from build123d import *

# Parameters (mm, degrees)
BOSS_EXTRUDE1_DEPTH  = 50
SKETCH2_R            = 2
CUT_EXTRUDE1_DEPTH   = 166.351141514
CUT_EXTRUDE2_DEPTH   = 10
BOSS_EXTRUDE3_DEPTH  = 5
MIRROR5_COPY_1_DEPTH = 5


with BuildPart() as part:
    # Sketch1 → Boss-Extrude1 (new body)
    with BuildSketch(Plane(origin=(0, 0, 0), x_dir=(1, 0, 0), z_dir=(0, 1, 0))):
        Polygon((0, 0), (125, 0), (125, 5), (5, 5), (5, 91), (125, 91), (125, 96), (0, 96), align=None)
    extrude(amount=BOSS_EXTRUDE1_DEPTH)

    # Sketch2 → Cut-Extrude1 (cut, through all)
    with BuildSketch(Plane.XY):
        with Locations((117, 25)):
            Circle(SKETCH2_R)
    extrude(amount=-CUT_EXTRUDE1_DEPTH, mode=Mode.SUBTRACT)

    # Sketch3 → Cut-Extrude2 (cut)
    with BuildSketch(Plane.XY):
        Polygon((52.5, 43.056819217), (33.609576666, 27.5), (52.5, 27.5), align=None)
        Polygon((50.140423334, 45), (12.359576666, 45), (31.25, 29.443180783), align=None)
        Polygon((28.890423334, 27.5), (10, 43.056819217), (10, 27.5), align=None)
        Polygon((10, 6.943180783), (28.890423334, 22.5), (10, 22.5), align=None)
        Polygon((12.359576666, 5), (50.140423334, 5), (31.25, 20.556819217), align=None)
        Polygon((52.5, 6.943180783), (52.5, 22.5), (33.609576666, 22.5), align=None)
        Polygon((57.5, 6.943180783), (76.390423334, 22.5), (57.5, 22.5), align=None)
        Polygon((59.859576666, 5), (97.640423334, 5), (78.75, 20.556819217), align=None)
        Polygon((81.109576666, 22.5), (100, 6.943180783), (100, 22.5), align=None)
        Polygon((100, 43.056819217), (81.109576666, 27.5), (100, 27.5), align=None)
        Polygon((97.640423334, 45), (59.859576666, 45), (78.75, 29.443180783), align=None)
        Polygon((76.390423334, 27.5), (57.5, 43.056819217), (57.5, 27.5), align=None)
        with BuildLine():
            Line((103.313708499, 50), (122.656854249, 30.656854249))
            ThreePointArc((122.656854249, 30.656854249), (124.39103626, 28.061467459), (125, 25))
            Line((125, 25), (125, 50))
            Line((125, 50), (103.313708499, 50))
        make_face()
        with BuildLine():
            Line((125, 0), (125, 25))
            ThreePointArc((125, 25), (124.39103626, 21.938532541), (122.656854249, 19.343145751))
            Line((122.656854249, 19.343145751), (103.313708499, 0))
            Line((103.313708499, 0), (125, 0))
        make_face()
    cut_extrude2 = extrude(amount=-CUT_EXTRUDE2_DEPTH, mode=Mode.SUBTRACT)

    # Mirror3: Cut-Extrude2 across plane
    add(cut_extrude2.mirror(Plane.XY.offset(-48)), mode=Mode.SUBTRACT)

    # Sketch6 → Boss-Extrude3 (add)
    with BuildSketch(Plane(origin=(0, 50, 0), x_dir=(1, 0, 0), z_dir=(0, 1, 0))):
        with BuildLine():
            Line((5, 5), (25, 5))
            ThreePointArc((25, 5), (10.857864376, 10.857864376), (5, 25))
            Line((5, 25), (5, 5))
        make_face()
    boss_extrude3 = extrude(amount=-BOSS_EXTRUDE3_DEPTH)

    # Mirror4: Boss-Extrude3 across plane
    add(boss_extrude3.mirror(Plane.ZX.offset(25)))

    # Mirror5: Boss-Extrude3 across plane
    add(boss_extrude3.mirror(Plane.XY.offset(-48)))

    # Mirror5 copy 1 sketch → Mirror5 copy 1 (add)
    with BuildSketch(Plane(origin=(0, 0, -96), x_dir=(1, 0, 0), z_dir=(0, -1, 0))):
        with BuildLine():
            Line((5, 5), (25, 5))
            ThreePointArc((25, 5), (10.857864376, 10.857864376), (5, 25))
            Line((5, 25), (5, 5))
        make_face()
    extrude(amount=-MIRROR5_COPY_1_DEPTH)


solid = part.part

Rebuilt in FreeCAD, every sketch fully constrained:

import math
import FreeCAD as App
import Part
import Sketcher

V = App.Vector

doc = App.newDocument("Part")
body = doc.addObject("PartDesign::Body", "Body")

# Sketch on XZ plane
sketch1 = doc.addObject("Sketcher::SketchObject", "Sketch")
body.addObject(sketch1)
sketch1.AttachmentSupport = (doc.XZ_Plane, [""])
sketch1.MapMode = "FlatFace"
sketch1.addGeometry(Part.LineSegment(V(0, 0, 0), V(125, 0, 0)), False)
sketch1.addGeometry(Part.LineSegment(V(125, 0, 0), V(125, -5, 0)), False)
sketch1.addGeometry(Part.LineSegment(V(125, -5, 0), V(5, -5, 0)), False)
sketch1.addGeometry(Part.LineSegment(V(5, -5, 0), V(5, -91, 0)), False)
sketch1.addGeometry(Part.LineSegment(V(5, -91, 0), V(125, -91, 0)), False)
sketch1.addGeometry(Part.LineSegment(V(125, -91, 0), V(125, -96, 0)), False)
sketch1.addGeometry(Part.LineSegment(V(125, -96, 0), V(0, -96, 0)), False)
sketch1.addGeometry(Part.LineSegment(V(0, -96, 0), V(0, 0, 0)), False)
sketch1.addConstraint(Sketcher.Constraint("Coincident", 0, 2, 1, 1))
sketch1.addConstraint(Sketcher.Constraint("Coincident", 1, 2, 2, 1))
sketch1.addConstraint(Sketcher.Constraint("Coincident", 2, 2, 3, 1))
sketch1.addConstraint(Sketcher.Constraint("Coincident", 3, 2, 4, 1))
sketch1.addConstraint(Sketcher.Constraint("Coincident", 4, 2, 5, 1))
sketch1.addConstraint(Sketcher.Constraint("Coincident", 5, 2, 6, 1))
sketch1.addConstraint(Sketcher.Constraint("Coincident", 6, 2, 7, 1))
sketch1.addConstraint(Sketcher.Constraint("Coincident", 7, 2, 0, 1))
sketch1.addConstraint(Sketcher.Constraint("Horizontal", 0))
sketch1.addConstraint(Sketcher.Constraint("Vertical", 1))
sketch1.addConstraint(Sketcher.Constraint("Horizontal", 2))
sketch1.addConstraint(Sketcher.Constraint("Vertical", 3))
sketch1.addConstraint(Sketcher.Constraint("Horizontal", 4))
sketch1.addConstraint(Sketcher.Constraint("Vertical", 5))
sketch1.addConstraint(Sketcher.Constraint("Horizontal", 6))
sketch1.addConstraint(Sketcher.Constraint("Vertical", 7))
sketch1.addConstraint(Sketcher.Constraint("Coincident", 7, 2, -1, 1))
sketch1.addConstraint(Sketcher.Constraint("Vertical", 1, 2, 4, 2))
sketch1.addConstraint(Sketcher.Constraint("Equal", 1, 5))
sketch1.addConstraint(Sketcher.Constraint("DistanceX", 0, 1, 0, 2, 125.0))
sketch1.addConstraint(Sketcher.Constraint("DistanceX", 2, 2, 2, 1, 120.0))
sketch1.addConstraint(Sketcher.Constraint("DistanceY", 1, 2, 1, 1, 5.0))
sketch1.addConstraint(Sketcher.Constraint("DistanceY", 3, 2, 3, 1, 86.0))
pad1 = doc.addObject("PartDesign::Pad", "Pad")
body.addObject(pad1)
pad1.Profile = sketch1
pad1.Length = 50
pad1.Reversed = True

# Sketch on XY plane
sketch2 = doc.addObject("Sketcher::SketchObject", "Sketch001")
body.addObject(sketch2)
sketch2.AttachmentSupport = (doc.XY_Plane, [""])
sketch2.MapMode = "FlatFace"
sketch2.addGeometry(Part.Circle(V(117, 25, 0), V(0, 0, 1), 2), False)
sketch2.addConstraint(Sketcher.Constraint("Diameter", 0, 4.0))
sketch2.addConstraint(Sketcher.Constraint("DistanceX", -1, 1, 0, 3, 117.0))
sketch2.addConstraint(Sketcher.Constraint("DistanceY", -1, 1, 0, 3, 25.0))
pocket1 = doc.addObject("PartDesign::Pocket", "Pocket")
body.addObject(pocket1)
pocket1.Profile = sketch2
pocket1.Type = "ThroughAll"

# Sketch on XY plane
sketch3 = doc.addObject("Sketcher::SketchObject", "Sketch002")
body.addObject(sketch3)
sketch3.AttachmentSupport = (doc.XY_Plane, [""])
sketch3.MapMode = "FlatFace"
sketch3.addGeometry(Part.LineSegment(V(52, 43, 0), V(34, 28, 0)), False)
sketch3.addGeometry(Part.LineSegment(V(34, 28, 0), V(52, 28, 0)), False)
sketch3.addGeometry(Part.LineSegment(V(52, 28, 0), V(52, 43, 0)), False)
sketch3.addGeometry(Part.LineSegment(V(50, 45, 0), V(12, 45, 0)), False)
sketch3.addGeometry(Part.LineSegment(V(12, 45, 0), V(31, 29, 0)), False)
sketch3.addGeometry(Part.LineSegment(V(31, 29, 0), V(50, 45, 0)), False)
sketch3.addGeometry(Part.LineSegment(V(29, 28, 0), V(10, 43, 0)), False)
sketch3.addGeometry(Part.LineSegment(V(10, 43, 0), V(10, 28, 0)), False)
sketch3.addGeometry(Part.LineSegment(V(10, 28, 0), V(29, 28, 0)), False)
sketch3.addGeometry(Part.LineSegment(V(10, 7, 0), V(29, 22, 0)), False)
sketch3.addGeometry(Part.LineSegment(V(29, 22, 0), V(10, 22, 0)), False)
sketch3.addGeometry(Part.LineSegment(V(10, 22, 0), V(10, 7, 0)), False)
sketch3.addGeometry(Part.LineSegment(V(12, 5, 0), V(50, 5, 0)), False)
sketch3.addGeometry(Part.LineSegment(V(50, 5, 0), V(31, 21, 0)), False)
sketch3.addGeometry(Part.LineSegment(V(31, 21, 0), V(12, 5, 0)), False)
sketch3.addGeometry(Part.LineSegment(V(52, 7, 0), V(52, 22, 0)), False)
sketch3.addGeometry(Part.LineSegment(V(52, 22, 0), V(34, 22, 0)), False)
sketch3.addGeometry(Part.LineSegment(V(34, 22, 0), V(52, 7, 0)), False)
sketch3.addGeometry(Part.LineSegment(V(58, 7, 0), V(76, 22, 0)), False)
sketch3.addGeometry(Part.LineSegment(V(76, 22, 0), V(58, 22, 0)), False)
sketch3.addGeometry(Part.LineSegment(V(58, 22, 0), V(58, 7, 0)), False)
sketch3.addGeometry(Part.LineSegment(V(60, 5, 0), V(98, 5, 0)), False)
sketch3.addGeometry(Part.LineSegment(V(98, 5, 0), V(79, 21, 0)), False)
sketch3.addGeometry(Part.LineSegment(V(79, 21, 0), V(60, 5, 0)), False)
sketch3.addGeometry(Part.LineSegment(V(81, 22, 0), V(100, 7, 0)), False)
sketch3.addGeometry(Part.LineSegment(V(100, 7, 0), V(100, 22, 0)), False)
sketch3.addGeometry(Part.LineSegment(V(100, 22, 0), V(81, 22, 0)), False)
sketch3.addGeometry(Part.LineSegment(V(100, 43, 0), V(81, 28, 0)), False)
sketch3.addGeometry(Part.LineSegment(V(81, 28, 0), V(100, 28, 0)), False)
sketch3.addGeometry(Part.LineSegment(V(100, 28, 0), V(100, 43, 0)), False)
sketch3.addGeometry(Part.LineSegment(V(98, 45, 0), V(60, 45, 0)), False)
sketch3.addGeometry(Part.LineSegment(V(60, 45, 0), V(79, 29, 0)), False)
sketch3.addGeometry(Part.LineSegment(V(79, 29, 0), V(98, 45, 0)), False)
sketch3.addGeometry(Part.LineSegment(V(76, 28, 0), V(58, 43, 0)), False)
sketch3.addGeometry(Part.LineSegment(V(58, 43, 0), V(58, 28, 0)), False)
sketch3.addGeometry(Part.LineSegment(V(58, 28, 0), V(76, 28, 0)), False)
sketch3.addGeometry(Part.LineSegment(V(103, 50, 0), V(123, 31, 0)), False)
sketch3.addGeometry(Part.ArcOfCircle(Part.Circle(V(117, 25, 0), V(0, 0, 1), 8), math.radians(0), math.radians(45)), False)
sketch3.addGeometry(Part.LineSegment(V(125, 25, 0), V(125, 50, 0)), False)
sketch3.addGeometry(Part.LineSegment(V(125, 50, 0), V(103, 50, 0)), False)
sketch3.addGeometry(Part.LineSegment(V(125, 0, 0), V(125, 25, 0)), False)
sketch3.addGeometry(Part.ArcOfCircle(Part.Circle(V(117, 25, 0), V(0, 0, 1), 8), math.radians(-45), math.radians(0)), False)
sketch3.addGeometry(Part.LineSegment(V(123, 19, 0), V(103, 0, 0)), False)
sketch3.addGeometry(Part.LineSegment(V(103, 0, 0), V(125, 0, 0)), False)
sketch3.addConstraint(Sketcher.Constraint("Coincident", 0, 2, 1, 1))
sketch3.addConstraint(Sketcher.Constraint("Coincident", 1, 2, 2, 1))
sketch3.addConstraint(Sketcher.Constraint("Coincident", 2, 2, 0, 1))
sketch3.addConstraint(Sketcher.Constraint("Coincident", 3, 2, 4, 1))
sketch3.addConstraint(Sketcher.Constraint("Coincident", 4, 2, 5, 1))
sketch3.addConstraint(Sketcher.Constraint("Coincident", 5, 2, 3, 1))
sketch3.addConstraint(Sketcher.Constraint("Coincident", 6, 2, 7, 1))
sketch3.addConstraint(Sketcher.Constraint("Coincident", 7, 2, 8, 1))
sketch3.addConstraint(Sketcher.Constraint("Coincident", 8, 2, 6, 1))
sketch3.addConstraint(Sketcher.Constraint("Coincident", 9, 2, 10, 1))
sketch3.addConstraint(Sketcher.Constraint("Coincident", 10, 2, 11, 1))
sketch3.addConstraint(Sketcher.Constraint("Coincident", 11, 2, 9, 1))
sketch3.addConstraint(Sketcher.Constraint("Coincident", 12, 2, 13, 1))
sketch3.addConstraint(Sketcher.Constraint("Coincident", 13, 2, 14, 1))
sketch3.addConstraint(Sketcher.Constraint("Coincident", 14, 2, 12, 1))
sketch3.addConstraint(Sketcher.Constraint("Coincident", 15, 2, 16, 1))
sketch3.addConstraint(Sketcher.Constraint("Coincident", 16, 2, 17, 1))
sketch3.addConstraint(Sketcher.Constraint("Coincident", 17, 2, 15, 1))
sketch3.addConstraint(Sketcher.Constraint("Coincident", 18, 2, 19, 1))
sketch3.addConstraint(Sketcher.Constraint("Coincident", 19, 2, 20, 1))
sketch3.addConstraint(Sketcher.Constraint("Coincident", 20, 2, 18, 1))
sketch3.addConstraint(Sketcher.Constraint("Coincident", 21, 2, 22, 1))
sketch3.addConstraint(Sketcher.Constraint("Coincident", 22, 2, 23, 1))
sketch3.addConstraint(Sketcher.Constraint("Coincident", 23, 2, 21, 1))
sketch3.addConstraint(Sketcher.Constraint("Coincident", 24, 2, 25, 1))
sketch3.addConstraint(Sketcher.Constraint("Coincident", 25, 2, 26, 1))
sketch3.addConstraint(Sketcher.Constraint("Coincident", 26, 2, 24, 1))
sketch3.addConstraint(Sketcher.Constraint("Coincident", 27, 2, 28, 1))
sketch3.addConstraint(Sketcher.Constraint("Coincident", 28, 2, 29, 1))
sketch3.addConstraint(Sketcher.Constraint("Coincident", 29, 2, 27, 1))
sketch3.addConstraint(Sketcher.Constraint("Coincident", 30, 2, 31, 1))
sketch3.addConstraint(Sketcher.Constraint("Coincident", 31, 2, 32, 1))
sketch3.addConstraint(Sketcher.Constraint("Coincident", 32, 2, 30, 1))
sketch3.addConstraint(Sketcher.Constraint("Coincident", 33, 2, 34, 1))
sketch3.addConstraint(Sketcher.Constraint("Coincident", 34, 2, 35, 1))
sketch3.addConstraint(Sketcher.Constraint("Coincident", 35, 2, 33, 1))
sketch3.addConstraint(Sketcher.Constraint("Tangent", 36, 2, 37, 2))
sketch3.addConstraint(Sketcher.Constraint("Tangent", 37, 1, 38, 1))
sketch3.addConstraint(Sketcher.Constraint("Coincident", 38, 2, 39, 1))
sketch3.addConstraint(Sketcher.Constraint("Coincident", 39, 2, 36, 1))
sketch3.addConstraint(Sketcher.Constraint("Tangent", 40, 2, 41, 2))
sketch3.addConstraint(Sketcher.Constraint("Tangent", 41, 1, 42, 1))
sketch3.addConstraint(Sketcher.Constraint("Coincident", 42, 2, 43, 1))
sketch3.addConstraint(Sketcher.Constraint("Coincident", 43, 2, 40, 1))
sketch3.addConstraint(Sketcher.Constraint("Horizontal", 1))
sketch3.addConstraint(Sketcher.Constraint("Vertical", 2))
sketch3.addConstraint(Sketcher.Constraint("Horizontal", 3))
sketch3.addConstraint(Sketcher.Constraint("Vertical", 7))
sketch3.addConstraint(Sketcher.Constraint("Horizontal", 8))
sketch3.addConstraint(Sketcher.Constraint("Horizontal", 10))
sketch3.addConstraint(Sketcher.Constraint("Vertical", 11))
sketch3.addConstraint(Sketcher.Constraint("Horizontal", 12))
sketch3.addConstraint(Sketcher.Constraint("Vertical", 15))
sketch3.addConstraint(Sketcher.Constraint("Horizontal", 16))
sketch3.addConstraint(Sketcher.Constraint("Horizontal", 19))
sketch3.addConstraint(Sketcher.Constraint("Vertical", 20))
sketch3.addConstraint(Sketcher.Constraint("Horizontal", 21))
sketch3.addConstraint(Sketcher.Constraint("Vertical", 25))
sketch3.addConstraint(Sketcher.Constraint("Horizontal", 26))
sketch3.addConstraint(Sketcher.Constraint("Horizontal", 28))
sketch3.addConstraint(Sketcher.Constraint("Vertical", 29))
sketch3.addConstraint(Sketcher.Constraint("Horizontal", 30))
sketch3.addConstraint(Sketcher.Constraint("Vertical", 34))
sketch3.addConstraint(Sketcher.Constraint("Horizontal", 35))
sketch3.addConstraint(Sketcher.Constraint("Vertical", 38))
sketch3.addConstraint(Sketcher.Constraint("Horizontal", 39))
sketch3.addConstraint(Sketcher.Constraint("Vertical", 40))
sketch3.addConstraint(Sketcher.Constraint("Horizontal", 43))
sketch3.addConstraint(Sketcher.Constraint("Coincident", 41, 3, 37, 3))
sketch3.addConstraint(Sketcher.Constraint("Equal", 37, 41))
sketch3.addConstraint(Sketcher.Constraint("PointOnObject", 42, 2, -1))
sketch3.addConstraint(Sketcher.Constraint("Parallel", 0, 5))
sketch3.addConstraint(Sketcher.Constraint("Parallel", 4, 6))
sketch3.addConstraint(Sketcher.Constraint("Parallel", 5, 9))
sketch3.addConstraint(Sketcher.Constraint("Parallel", 6, 13))
sketch3.addConstraint(Sketcher.Constraint("Parallel", 9, 14))
sketch3.addConstraint(Sketcher.Constraint("Parallel", 13, 17))
sketch3.addConstraint(Sketcher.Constraint("Parallel", 14, 18))
sketch3.addConstraint(Sketcher.Constraint("Parallel", 17, 22))
sketch3.addConstraint(Sketcher.Constraint("Parallel", 18, 23))
sketch3.addConstraint(Sketcher.Constraint("Parallel", 22, 24))
sketch3.addConstraint(Sketcher.Constraint("Parallel", 23, 27))
sketch3.addConstraint(Sketcher.Constraint("Parallel", 24, 31))
sketch3.addConstraint(Sketcher.Constraint("Parallel", 27, 32))
sketch3.addConstraint(Sketcher.Constraint("Parallel", 31, 33))
sketch3.addConstraint(Sketcher.Constraint("Perpendicular", 36, 42))
sketch3.addConstraint(Sketcher.Constraint("Horizontal", 2, 2, 6, 2))
sketch3.addConstraint(Sketcher.Constraint("Horizontal", 1, 2, 7, 2))
sketch3.addConstraint(Sketcher.Constraint("Horizontal", 10, 2, 15, 2))
sketch3.addConstraint(Sketcher.Constraint("Horizontal", 11, 2, 17, 2))
sketch3.addConstraint(Sketcher.Constraint("Horizontal", 16, 2, 18, 2))
sketch3.addConstraint(Sketcher.Constraint("Horizontal", 17, 2, 20, 2))
sketch3.addConstraint(Sketcher.Constraint("Horizontal", 14, 2, 21, 2))
sketch3.addConstraint(Sketcher.Constraint("Horizontal", 13, 2, 22, 2))
sketch3.addConstraint(Sketcher.Constraint("Horizontal", 20, 2, 24, 2))
sketch3.addConstraint(Sketcher.Constraint("Horizontal", 19, 2, 25, 2))
sketch3.addConstraint(Sketcher.Constraint("Horizontal", 8, 2, 27, 2))
sketch3.addConstraint(Sketcher.Constraint("Horizontal", 6, 2, 29, 2))
sketch3.addConstraint(Sketcher.Constraint("Horizontal", 5, 2, 30, 2))
sketch3.addConstraint(Sketcher.Constraint("Horizontal", 4, 2, 31, 2))
sketch3.addConstraint(Sketcher.Constraint("Horizontal", 29, 2, 33, 2))
sketch3.addConstraint(Sketcher.Constraint("Horizontal", 28, 2, 34, 2))
sketch3.addConstraint(Sketcher.Constraint("Vertical", 8, 2, 9, 2))
sketch3.addConstraint(Sketcher.Constraint("Vertical", 7, 2, 10, 2))
sketch3.addConstraint(Sketcher.Constraint("Vertical", 5, 2, 12, 2))
sketch3.addConstraint(Sketcher.Constraint("Vertical", 4, 2, 13, 2))
sketch3.addConstraint(Sketcher.Constraint("Vertical", 3, 2, 14, 2))
sketch3.addConstraint(Sketcher.Constraint("Vertical", 2, 2, 15, 2))
sketch3.addConstraint(Sketcher.Constraint("Vertical", 26, 2, 27, 2))
sketch3.addConstraint(Sketcher.Constraint("Vertical", 23, 2, 30, 2))
sketch3.addConstraint(Sketcher.Constraint("Vertical", 20, 2, 33, 2))
sketch3.addConstraint(Sketcher.Constraint("Vertical", 36, 2, 41, 1))
sketch3.addConstraint(Sketcher.Constraint("Vertical", 39, 2, 42, 2))
sketch3.addConstraint(Sketcher.Constraint("Equal", 0, 4))
sketch3.addConstraint(Sketcher.Constraint("Radius", 37, 8.0))
sketch3.addConstraint(Sketcher.Constraint("DistanceY", 38, 1, 38, 2, 25.0))
sketch3.addConstraint(Sketcher.Constraint("DistanceX", -1, 1, 37, 3, 117.0))
sketch3.addConstraint(Sketcher.Constraint("DistanceY", -1, 1, 3, 2, 45.0))
sketch3.addConstraint(Sketcher.Constraint("DistanceX", -1, 1, 6, 2, 10.0))
sketch3.addConstraint(Sketcher.Constraint("DistanceY", -1, 1, 12, 2, 5.0))
sketch3.addConstraint(Sketcher.Constraint("DistanceX", -1, 1, 24, 2, 100.0))
sketch3.addConstraint(Sketcher.Constraint("DistanceY", 9, 2, 8, 2, 5.0))
sketch3.addConstraint(Sketcher.Constraint("DistanceX", 15, 2, 19, 2, 5.0))
sketch3.addConstraint(Sketcher.Constraint("DistanceY", -1, 1, 0, 2, 27.5))
sketch3.addConstraint(Sketcher.Constraint("DistanceX", -1, 1, 1, 2, 52.5))
sketch3.addConstraint(Sketcher.Constraint("DistanceX", -1, 1, 4, 2, 31.25))
sketch3.addConstraint(Sketcher.Constraint("DistanceX", -1, 1, 22, 2, 78.75))
sketch3.addConstraint(Sketcher.Constraint("DistanceY", 2, 1, 2, 2, 15.556819))
sketch3.addConstraint(Sketcher.Constraint("Distance", 0, 24.471672))
pocket2 = doc.addObject("PartDesign::Pocket", "Pocket001")
body.addObject(pocket2)
pocket2.Profile = sketch3
pocket2.Length = 10
doc.recompute()

datumplane = doc.addObject("PartDesign::Plane", "DatumPlane")
body.addObject(datumplane)
datumplane.AttachmentSupport = (doc.XY_Plane, [""])
datumplane.MapMode = "FlatFace"
datumplane.AttachmentOffset = App.Placement(V(0, 0, -48), App.Rotation())
mirrored = doc.addObject("PartDesign::Mirrored", "Mirrored")
body.addObject(mirrored)
mirrored.Originals = [pocket2]
mirrored.MirrorPlane = (datumplane, [""])
body.Tip = mirrored

# Sketch on XZ plane
sketch4 = doc.addObject("Sketcher::SketchObject", "Sketch003")
body.addObject(sketch4)
sketch4.AttachmentSupport = (doc.XZ_Plane, [""])
sketch4.MapMode = "FlatFace"
sketch4.AttachmentOffset = App.Placement(V(0, 0, -50), App.Rotation())
sketch4.addGeometry(Part.LineSegment(V(5, -5, 0), V(25, -5, 0)), False)
sketch4.addGeometry(Part.ArcOfCircle(Part.Circle(V(25, -25, 0), V(0, 0, 1), 20), math.radians(90), math.radians(180)), False)
sketch4.addGeometry(Part.LineSegment(V(5, -25, 0), V(5, -5, 0)), False)
sketch4.addConstraint(Sketcher.Constraint("Tangent", 0, 2, 1, 1))
sketch4.addConstraint(Sketcher.Constraint("Tangent", 1, 2, 2, 1))
sketch4.addConstraint(Sketcher.Constraint("Coincident", 2, 2, 0, 1))
sketch4.addConstraint(Sketcher.Constraint("Horizontal", 0))
sketch4.addConstraint(Sketcher.Constraint("Vertical", 2))
sketch4.addConstraint(Sketcher.Constraint("Radius", 1, 20.0))
sketch4.addConstraint(Sketcher.Constraint("DistanceX", -1, 1, 1, 3, 25.0))
sketch4.addConstraint(Sketcher.Constraint("DistanceY", 1, 3, -1, 1, 25.0))
pad2 = doc.addObject("PartDesign::Pad", "Pad001")
body.addObject(pad2)
pad2.Profile = sketch4
pad2.Length = 5
doc.recompute()

datumplane2 = doc.addObject("PartDesign::Plane", "DatumPlane001")
body.addObject(datumplane2)
datumplane2.AttachmentSupport = (doc.XZ_Plane, [""])
datumplane2.MapMode = "FlatFace"
datumplane2.AttachmentOffset = App.Placement(V(0, 0, -25), App.Rotation())
mirrored2 = doc.addObject("PartDesign::Mirrored", "Mirrored001")
body.addObject(mirrored2)
mirrored2.Originals = [pad2]
mirrored2.MirrorPlane = (datumplane2, [""])
body.Tip = mirrored2
doc.recompute()

datumplane3 = doc.addObject("PartDesign::Plane", "DatumPlane002")
body.addObject(datumplane3)
datumplane3.AttachmentSupport = (doc.XY_Plane, [""])
datumplane3.MapMode = "FlatFace"
datumplane3.AttachmentOffset = App.Placement(V(0, 0, -48), App.Rotation())
mirrored3 = doc.addObject("PartDesign::Mirrored", "Mirrored002")
body.addObject(mirrored3)
mirrored3.Originals = [pad2]
mirrored3.MirrorPlane = (datumplane3, [""])
body.Tip = mirrored3

# Sketch on XZ plane
sketch5 = doc.addObject("Sketcher::SketchObject", "Sketch004")
body.addObject(sketch5)
sketch5.AttachmentSupport = (doc.XZ_Plane, [""])
sketch5.MapMode = "FlatFace"
sketch5.addGeometry(Part.LineSegment(V(5, -91, 0), V(25, -91, 0)), False)
sketch5.addGeometry(Part.ArcOfCircle(Part.Circle(V(25, -71, 0), V(0, 0, 1), 20), math.radians(180), math.radians(270)), False)
sketch5.addGeometry(Part.LineSegment(V(5, -71, 0), V(5, -91, 0)), False)
sketch5.addConstraint(Sketcher.Constraint("Tangent", 0, 2, 1, 2))
sketch5.addConstraint(Sketcher.Constraint("Tangent", 1, 1, 2, 1))
sketch5.addConstraint(Sketcher.Constraint("Coincident", 2, 2, 0, 1))
sketch5.addConstraint(Sketcher.Constraint("Horizontal", 0))
sketch5.addConstraint(Sketcher.Constraint("Vertical", 2))
sketch5.addConstraint(Sketcher.Constraint("Radius", 1, 20.0))
sketch5.addConstraint(Sketcher.Constraint("DistanceX", -1, 1, 1, 3, 25.0))
sketch5.addConstraint(Sketcher.Constraint("DistanceY", 1, 3, -1, 1, 71.0))
pad3 = doc.addObject("PartDesign::Pad", "Pad002")
body.addObject(pad3)
pad3.Profile = sketch5
pad3.Length = 5
pad3.Reversed = True

doc.recompute()
